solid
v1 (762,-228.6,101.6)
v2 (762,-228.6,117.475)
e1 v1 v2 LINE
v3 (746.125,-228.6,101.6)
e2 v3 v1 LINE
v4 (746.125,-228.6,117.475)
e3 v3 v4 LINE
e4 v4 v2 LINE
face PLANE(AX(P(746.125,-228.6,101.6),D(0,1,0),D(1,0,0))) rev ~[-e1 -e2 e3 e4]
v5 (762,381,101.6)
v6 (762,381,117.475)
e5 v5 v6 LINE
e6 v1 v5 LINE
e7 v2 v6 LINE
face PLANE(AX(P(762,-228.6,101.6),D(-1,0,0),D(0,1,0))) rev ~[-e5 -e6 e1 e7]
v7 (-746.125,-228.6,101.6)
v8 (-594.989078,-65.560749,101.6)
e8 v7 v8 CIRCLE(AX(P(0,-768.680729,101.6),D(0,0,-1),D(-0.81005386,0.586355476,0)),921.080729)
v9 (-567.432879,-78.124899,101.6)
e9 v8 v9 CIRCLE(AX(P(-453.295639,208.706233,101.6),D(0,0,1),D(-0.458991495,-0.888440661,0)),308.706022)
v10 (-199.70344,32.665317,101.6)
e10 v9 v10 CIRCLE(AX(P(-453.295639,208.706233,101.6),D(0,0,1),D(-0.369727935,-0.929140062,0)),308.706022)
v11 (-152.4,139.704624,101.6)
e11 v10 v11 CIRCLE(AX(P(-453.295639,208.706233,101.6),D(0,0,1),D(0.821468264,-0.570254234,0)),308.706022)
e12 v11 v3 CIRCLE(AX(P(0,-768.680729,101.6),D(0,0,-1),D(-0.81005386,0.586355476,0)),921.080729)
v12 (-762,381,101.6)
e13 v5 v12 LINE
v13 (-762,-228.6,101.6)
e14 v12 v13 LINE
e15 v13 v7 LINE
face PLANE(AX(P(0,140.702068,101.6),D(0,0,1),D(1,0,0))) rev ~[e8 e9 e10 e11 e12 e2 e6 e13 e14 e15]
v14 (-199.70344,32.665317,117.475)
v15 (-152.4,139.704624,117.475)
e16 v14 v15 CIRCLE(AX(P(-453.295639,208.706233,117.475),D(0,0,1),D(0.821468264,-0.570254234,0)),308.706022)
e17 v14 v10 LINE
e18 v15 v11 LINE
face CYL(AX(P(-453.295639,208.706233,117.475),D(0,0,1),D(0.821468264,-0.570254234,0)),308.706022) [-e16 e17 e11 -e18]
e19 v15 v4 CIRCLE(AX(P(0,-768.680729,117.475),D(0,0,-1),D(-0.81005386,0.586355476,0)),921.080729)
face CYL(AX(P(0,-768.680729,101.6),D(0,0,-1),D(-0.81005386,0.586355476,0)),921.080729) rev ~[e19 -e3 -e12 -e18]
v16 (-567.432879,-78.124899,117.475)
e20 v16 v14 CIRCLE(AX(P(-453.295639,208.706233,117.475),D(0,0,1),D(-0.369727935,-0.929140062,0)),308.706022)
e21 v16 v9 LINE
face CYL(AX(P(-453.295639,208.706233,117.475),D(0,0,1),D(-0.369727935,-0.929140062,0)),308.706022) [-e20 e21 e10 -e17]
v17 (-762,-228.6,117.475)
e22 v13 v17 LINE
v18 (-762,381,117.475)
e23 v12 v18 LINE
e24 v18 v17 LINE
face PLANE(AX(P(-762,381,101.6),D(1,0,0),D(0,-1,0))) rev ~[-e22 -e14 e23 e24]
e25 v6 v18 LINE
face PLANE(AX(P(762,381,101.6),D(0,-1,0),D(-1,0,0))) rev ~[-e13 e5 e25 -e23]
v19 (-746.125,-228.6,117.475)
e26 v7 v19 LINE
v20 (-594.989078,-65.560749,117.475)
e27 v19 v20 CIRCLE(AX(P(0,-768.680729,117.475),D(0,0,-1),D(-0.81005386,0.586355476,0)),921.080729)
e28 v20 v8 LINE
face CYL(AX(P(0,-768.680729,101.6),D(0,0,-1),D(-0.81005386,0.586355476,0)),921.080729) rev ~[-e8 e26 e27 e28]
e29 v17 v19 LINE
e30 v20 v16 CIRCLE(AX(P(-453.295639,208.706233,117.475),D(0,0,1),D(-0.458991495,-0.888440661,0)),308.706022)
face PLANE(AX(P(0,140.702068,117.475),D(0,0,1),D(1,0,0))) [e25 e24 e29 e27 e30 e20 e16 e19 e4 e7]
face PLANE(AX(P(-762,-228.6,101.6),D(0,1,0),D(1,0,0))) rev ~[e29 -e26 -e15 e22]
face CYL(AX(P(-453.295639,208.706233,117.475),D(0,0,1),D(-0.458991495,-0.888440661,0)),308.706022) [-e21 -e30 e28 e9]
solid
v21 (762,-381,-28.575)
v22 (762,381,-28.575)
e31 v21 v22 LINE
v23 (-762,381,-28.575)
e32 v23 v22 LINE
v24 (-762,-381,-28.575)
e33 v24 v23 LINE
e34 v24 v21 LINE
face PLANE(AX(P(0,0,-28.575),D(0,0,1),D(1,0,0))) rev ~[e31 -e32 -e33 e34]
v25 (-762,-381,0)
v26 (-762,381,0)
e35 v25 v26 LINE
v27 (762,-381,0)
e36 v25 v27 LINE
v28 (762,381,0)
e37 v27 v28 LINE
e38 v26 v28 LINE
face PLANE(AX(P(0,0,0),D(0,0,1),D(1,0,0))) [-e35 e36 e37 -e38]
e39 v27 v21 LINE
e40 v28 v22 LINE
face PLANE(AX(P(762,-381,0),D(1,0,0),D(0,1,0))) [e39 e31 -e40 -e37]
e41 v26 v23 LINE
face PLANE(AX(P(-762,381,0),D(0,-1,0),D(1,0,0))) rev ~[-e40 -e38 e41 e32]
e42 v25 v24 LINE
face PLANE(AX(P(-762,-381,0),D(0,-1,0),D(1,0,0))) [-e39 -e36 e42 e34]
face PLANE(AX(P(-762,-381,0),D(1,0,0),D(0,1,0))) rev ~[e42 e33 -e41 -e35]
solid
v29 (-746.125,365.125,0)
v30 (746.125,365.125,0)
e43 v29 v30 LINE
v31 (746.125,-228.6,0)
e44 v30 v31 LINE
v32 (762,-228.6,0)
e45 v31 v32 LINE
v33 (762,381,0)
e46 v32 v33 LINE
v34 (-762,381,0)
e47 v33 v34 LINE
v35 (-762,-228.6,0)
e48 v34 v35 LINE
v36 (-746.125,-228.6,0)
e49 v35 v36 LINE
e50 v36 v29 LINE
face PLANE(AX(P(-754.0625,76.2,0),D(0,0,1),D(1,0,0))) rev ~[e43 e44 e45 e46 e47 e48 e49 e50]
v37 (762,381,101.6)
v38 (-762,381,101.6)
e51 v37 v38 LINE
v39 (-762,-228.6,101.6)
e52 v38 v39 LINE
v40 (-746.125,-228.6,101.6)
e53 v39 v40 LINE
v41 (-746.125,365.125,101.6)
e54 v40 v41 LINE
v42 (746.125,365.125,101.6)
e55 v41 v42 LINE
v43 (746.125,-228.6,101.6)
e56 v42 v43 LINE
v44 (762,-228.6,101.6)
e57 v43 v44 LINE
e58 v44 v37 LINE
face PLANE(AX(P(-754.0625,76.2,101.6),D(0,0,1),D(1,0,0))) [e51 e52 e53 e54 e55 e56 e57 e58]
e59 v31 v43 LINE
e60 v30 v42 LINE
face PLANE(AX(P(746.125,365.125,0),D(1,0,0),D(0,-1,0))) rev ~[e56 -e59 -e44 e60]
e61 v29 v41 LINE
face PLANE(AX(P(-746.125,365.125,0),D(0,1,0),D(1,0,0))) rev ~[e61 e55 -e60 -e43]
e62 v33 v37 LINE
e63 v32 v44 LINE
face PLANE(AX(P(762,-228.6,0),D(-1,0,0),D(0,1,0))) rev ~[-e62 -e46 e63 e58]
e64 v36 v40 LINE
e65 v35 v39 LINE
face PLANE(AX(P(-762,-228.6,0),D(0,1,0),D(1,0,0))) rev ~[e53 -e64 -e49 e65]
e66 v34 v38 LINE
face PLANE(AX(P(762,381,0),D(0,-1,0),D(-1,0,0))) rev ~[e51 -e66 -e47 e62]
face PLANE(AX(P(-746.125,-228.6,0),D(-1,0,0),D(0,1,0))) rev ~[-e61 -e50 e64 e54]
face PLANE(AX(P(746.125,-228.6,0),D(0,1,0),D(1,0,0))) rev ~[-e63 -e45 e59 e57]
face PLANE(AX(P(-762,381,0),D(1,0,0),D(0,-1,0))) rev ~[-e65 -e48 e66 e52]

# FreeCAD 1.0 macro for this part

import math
import FreeCAD as App
import Part
import Sketcher
Q = App.Units.Quantity

doc = App.newDocument("Part")
body = doc.addObject("PartDesign::Body", "Body")

sketch1 = body.newObject("Sketcher::SketchObject", "Sketch")
sketch1.AttachmentSupport = (doc.getObject("XY_Plane"), [""])
sketch1.MapMode = "FlatFace"
sketch1.addGeometry(Part.LineSegment(App.Vector(-762, 381, 0), App.Vector(-762, -381, 0)), False)
sketch1.addGeometry(Part.LineSegment(App.Vector(-762, -381, 0), App.Vector(762, -381, 0)), False)
sketch1.addGeometry(Part.LineSegment(App.Vector(762, -381, 0), App.Vector(762, 381, 0)), False)
sketch1.addGeometry(Part.LineSegment(App.Vector(762, 381, 0), App.Vector(-762, 381, 0)), False)
sketch1.addConstraint(Sketcher.Constraint("Coincident", 0, 2, 1, 1))
sketch1.addConstraint(Sketcher.Constraint("Coincident", 1, 2, 2, 1))
sketch1.addConstraint(Sketcher.Constraint("Coincident", 2, 2, 3, 1))
sketch1.addConstraint(Sketcher.Constraint("Coincident", 3, 2, 0, 1))
sketch1.addConstraint(Sketcher.Constraint("Vertical", 0))
sketch1.addConstraint(Sketcher.Constraint("Horizontal", 1))
sketch1.addConstraint(Sketcher.Constraint("Vertical", 2))
sketch1.addConstraint(Sketcher.Constraint("Horizontal", 3))
sketch1.addConstraint(Sketcher.Constraint("Symmetric", 0, 2, 2, 2, -1, 1))
sketch1.addConstraint(Sketcher.Constraint("DistanceX", 1, 1, 1, 2, Q("60 in")))
sketch1.addConstraint(Sketcher.Constraint("DistanceY", 0, 2, 0, 1, Q("30 in")))
pad1 = body.newObject("PartDesign::Pad", "Pad")
pad1.Profile = sketch1
pad1.Length = Q("1.125 in")
pad1.Reversed = True
body2 = doc.addObject("PartDesign::Body", "Body001")

sketch2 = body2.newObject("Sketcher::SketchObject", "Sketch001")
sketch2.AttachmentSupport = (doc.getObject("XY_Plane001"), [""])
sketch2.MapMode = "FlatFace"
sketch2.addGeometry(Part.LineSegment(App.Vector(-762, 381, 0), App.Vector(-762, -229, 0)), False)
sketch2.addGeometry(Part.LineSegment(App.Vector(-762, -229, 0), App.Vector(-746, -229, 0)), False)
sketch2.addGeometry(Part.LineSegment(App.Vector(-746, -229, 0), App.Vector(-746, 365, 0)), False)
sketch2.addGeometry(Part.LineSegment(App.Vector(-746, 365, 0), App.Vector(746, 365, 0)), False)
sketch2.addGeometry(Part.LineSegment(App.Vector(746, 365, 0), App.Vector(746, -229, 0)), False)
sketch2.addGeometry(Part.LineSegment(App.Vector(746, -229, 0), App.Vector(762, -229, 0)), False)
sketch2.addGeometry(Part.LineSegment(App.Vector(762, -229, 0), App.Vector(762, 381, 0)), False)
sketch2.addGeometry(Part.LineSegment(App.Vector(762, 381, 0), App.Vector(-762, 381, 0)), False)
sketch2.addConstraint(Sketcher.Constraint("Coincident", 0, 2, 1, 1))
sketch2.addConstraint(Sketcher.Constraint("Coincident", 1, 2, 2, 1))
sketch2.addConstraint(Sketcher.Constraint("Coincident", 2, 2, 3, 1))
sketch2.addConstraint(Sketcher.Constraint("Coincident", 3, 2, 4, 1))
sketch2.addConstraint(Sketcher.Constraint("Coincident", 4, 2, 5, 1))
sketch2.addConstraint(Sketcher.Constraint("Coincident", 5, 2, 6, 1))
sketch2.addConstraint(Sketcher.Constraint("Coincident", 6, 2, 7, 1))
sketch2.addConstraint(Sketcher.Constraint("Coincident", 7, 2, 0, 1))
sketch2.addConstraint(Sketcher.Constraint("Vertical", 0))
sketch2.addConstraint(Sketcher.Constraint("Horizontal", 1))
sketch2.addConstraint(Sketcher.Constraint("Vertical", 2))
sketch2.addConstraint(Sketcher.Constraint("Horizontal", 3))
sketch2.addConstraint(Sketcher.Constraint("Vertical", 4))
sketch2.addConstraint(Sketcher.Constraint("Horizontal", 5))
sketch2.addConstraint(Sketcher.Constraint("Vertical", 6))
sketch2.addConstraint(Sketcher.Constraint("Horizontal", 7))
sketch2.addConstraint(Sketcher.Constraint("Symmetric", 1, 2, 4, 2, -2))
sketch2.addConstraint(Sketcher.Constraint("Equal", 1, 5))
sketch2.addConstraint(Sketcher.Constraint("DistanceX", 7, 2, 7, 1, Q("60 in")))
sketch2.addConstraint(Sketcher.Constraint("DistanceY", 0, 2, 0, 1, Q("24 in")))
sketch2.addConstraint(Sketcher.Constraint("DistanceY", 0, 2, -1, 1, Q("9 in")))
sketch2.addConstraint(Sketcher.Constraint("DistanceX", 3, 1, 3, 2, Q("58.75 in")))
sketch2.addConstraint(Sketcher.Constraint("DistanceY", 2, 1, 2, 2, Q("23.375 in")))
pad2 = body2.newObject("PartDesign::Pad", "Pad001")
pad2.Profile = sketch2
pad2.Length = Q("4 in")
body3 = doc.addObject("PartDesign::Body", "Body002")

sketch3 = body3.newObject("Sketcher::SketchObject", "Sketch002")
sketch3.AttachmentSupport = (doc.getObject("XY_Plane002"), [""])
sketch3.MapMode = "FlatFace"
sketch3.AttachmentOffset = App.Placement(App.Vector(0, 0, 4 * 25.4), App.Rotation())
sketch3.addGeometry(Part.ArcOfCircle(Part.Circle(App.Vector(0, -769, 0), App.Vector(0, 0, 1), 921), math.radians(36), math.radians(144)), False)
sketch3.addGeometry(Part.LineSegment(App.Vector(746, -229, 0), App.Vector(762, -229, 0)), False)
sketch3.addGeometry(Part.LineSegment(App.Vector(762, -229, 0), App.Vector(762, 381, 0)), False)
sketch3.addGeometry(Part.LineSegment(App.Vector(762, 381, 0), App.Vector(-762, 381, 0)), False)
sketch3.addGeometry(Part.LineSegment(App.Vector(-762, 381, 0), App.Vector(-762, -229, 0)), False)
sketch3.addGeometry(Part.LineSegment(App.Vector(-762, -229, 0), App.Vector(-746, -229, 0)), False)
sketch3.addConstraint(Sketcher.Constraint("Coincident", 0, 1, 1, 1))
sketch3.addConstraint(Sketcher.Constraint("Coincident", 1, 2, 2, 1))
sketch3.addConstraint(Sketcher.Constraint("Coincident", 2, 2, 3, 1))
sketch3.addConstraint(Sketcher.Constraint("Coincident", 3, 2, 4, 1))
sketch3.addConstraint(Sketcher.Constraint("Coincident", 4, 2, 5, 1))
sketch3.addConstraint(Sketcher.Constraint("Coincident", 5, 2, 0, 2))
sketch3.addConstraint(Sketcher.Constraint("Horizontal", 1))
sketch3.addConstraint(Sketcher.Constraint("Vertical", 2))
sketch3.addConstraint(Sketcher.Constraint("Horizontal", 3))
sketch3.addConstraint(Sketcher.Constraint("Vertical", 4))
sketch3.addConstraint(Sketcher.Constraint("Horizontal", 5))
sketch3.addConstraint(Sketcher.Constraint("Symmetric", 1, 2, 4, 2, -2))
sketch3.addConstraint(Sketcher.Constraint("PointOnObject", 0, 3, -2))
sketch3.addConstraint(Sketcher.Constraint("DistanceX", 3, 2, 3, 1, Q("60 in")))
sketch3.addConstraint(Sketcher.Constraint("DistanceY", 2, 1, 2, 2, Q("24 in")))
sketch3.addConstraint(Sketcher.Constraint("DistanceY", 1, 2, -1, 1, Q("9 in")))
sketch3.addConstraint(Sketcher.Constraint("DistanceX", 1, 1, 1, 2, Q("0.625 in")))
sketch3.addConstraint(Sketcher.Constraint("Radius", 0, 921.080729))
pad3 = body3.newObject("PartDesign::Pad", "Pad002")
pad3.Profile = sketch3
pad3.Length = Q("0.625 in")

sketch4 = body3.newObject("Sketcher::SketchObject", "Sketch003")
sketch4.AttachmentSupport = (doc.getObject("XY_Plane002"), [""])
sketch4.MapMode = "FlatFace"
sketch4.AttachmentOffset = App.Placement(App.Vector(0, 0, 4.625 * 25.4), App.Rotation())
sketch4.addGeometry(Part.ArcOfCircle(Part.Circle(App.Vector(-453, 209, 0), App.Vector(0, 0, 1), 309), math.radians(-117.32), math.radians(-111.7)), False)
sketch4.addGeometry(Part.ArcOfCircle(Part.Circle(App.Vector(-453, 209, 0), App.Vector(0, 0, 1), 309), math.radians(-112), math.radians(-35)), False)
sketch4.addGeometry(Part.ArcOfCircle(Part.Circle(App.Vector(-453, 209, 0), App.Vector(0, 0, 1), 309), math.radians(-35), math.radians(-13)), False)
sketch4.addGeometry(Part.ArcOfCircle(Part.Circle(App.Vector(0, -769, 0), App.Vector(0, 0, 1), 921), math.radians(100), math.radians(130)), False)
sketch4.addConstraint(Sketcher.Constraint("Tangent", 0, 2, 1, 1))
sketch4.addConstraint(Sketcher.Constraint("Tangent", 1, 2, 2, 1))
sketch4.addConstraint(Sketcher.Constraint("Coincident", 2, 2, 3, 1))
sketch4.addConstraint(Sketcher.Constraint("Coincident", 3, 2, 0, 1))
sketch4.addConstraint(Sketcher.Constraint("Coincident", 2, 3, 0, 3))
sketch4.addConstraint(Sketcher.Constraint("PointOnObject", 3, 3, -2))
sketch4.addConstraint(Sketcher.Constraint("DistanceX", 2, 2, -1, 1, Q("6 in")))
sketch4.addConstraint(Sketcher.Constraint("Radius", 0, 308.706022))
sketch4.addConstraint(Sketcher.Constraint("Radius", 3, 921.080729))
sketch4.addConstraint(Sketcher.Constraint("DistanceY", 0, 2, -1, 1, 78.124899))
sketch4.addConstraint(Sketcher.Constraint("DistanceX", 1, 3, 1, 2, 253.5922))
sketch4.addConstraint(Sketcher.Constraint("DistanceX", 0, 3, -1, 1, 453.295639))
sketch4.addConstraint(Sketcher.Constraint("DistanceY", 3, 3, -1, 1, 768.680729))
pad4 = body3.newObject("PartDesign::Pad", "Pad003")
pad4.Profile = sketch4
pad4.Length = Q("0.625 in")
pad4.Reversed = True

doc.recompute()
